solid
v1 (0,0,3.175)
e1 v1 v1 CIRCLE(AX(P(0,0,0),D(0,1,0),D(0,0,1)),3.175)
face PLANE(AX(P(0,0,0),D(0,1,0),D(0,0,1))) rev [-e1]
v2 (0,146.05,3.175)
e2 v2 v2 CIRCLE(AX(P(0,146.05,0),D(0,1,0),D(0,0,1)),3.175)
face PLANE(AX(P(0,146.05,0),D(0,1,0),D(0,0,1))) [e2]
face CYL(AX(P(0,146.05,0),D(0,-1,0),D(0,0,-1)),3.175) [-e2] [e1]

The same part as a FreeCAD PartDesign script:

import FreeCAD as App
import Part
import Sketcher
from FreeCAD import Vector
Q = App.Units.Quantity

doc = App.newDocument("Part")
body = doc.addObject("PartDesign::Body", "Body")

# Sketch on XZ plane
sketch1 = doc.addObject("Sketcher::SketchObject", "Sketch")
body.addObject(sketch1)
sketch1.AttachmentSupport = (doc.XZ_Plane, [""])
sketch1.MapMode = "FlatFace"
sketch1.addGeometry(Part.Circle(Vector(0, 0, 0), Vector(0, 0, 1), 3.2), False)
sketch1.addConstraint(Sketcher.Constraint("Coincident", 0, 3, -1, 1))
sketch1.addConstraint(Sketcher.Constraint("Diameter", 0, Q("0.25 in")))
pad1 = doc.addObject("PartDesign::Pad", "Pad")
body.addObject(pad1)
pad1.Profile = sketch1
pad1.Length = Q("5.75 in")
pad1.Reversed = True

doc.recompute()
